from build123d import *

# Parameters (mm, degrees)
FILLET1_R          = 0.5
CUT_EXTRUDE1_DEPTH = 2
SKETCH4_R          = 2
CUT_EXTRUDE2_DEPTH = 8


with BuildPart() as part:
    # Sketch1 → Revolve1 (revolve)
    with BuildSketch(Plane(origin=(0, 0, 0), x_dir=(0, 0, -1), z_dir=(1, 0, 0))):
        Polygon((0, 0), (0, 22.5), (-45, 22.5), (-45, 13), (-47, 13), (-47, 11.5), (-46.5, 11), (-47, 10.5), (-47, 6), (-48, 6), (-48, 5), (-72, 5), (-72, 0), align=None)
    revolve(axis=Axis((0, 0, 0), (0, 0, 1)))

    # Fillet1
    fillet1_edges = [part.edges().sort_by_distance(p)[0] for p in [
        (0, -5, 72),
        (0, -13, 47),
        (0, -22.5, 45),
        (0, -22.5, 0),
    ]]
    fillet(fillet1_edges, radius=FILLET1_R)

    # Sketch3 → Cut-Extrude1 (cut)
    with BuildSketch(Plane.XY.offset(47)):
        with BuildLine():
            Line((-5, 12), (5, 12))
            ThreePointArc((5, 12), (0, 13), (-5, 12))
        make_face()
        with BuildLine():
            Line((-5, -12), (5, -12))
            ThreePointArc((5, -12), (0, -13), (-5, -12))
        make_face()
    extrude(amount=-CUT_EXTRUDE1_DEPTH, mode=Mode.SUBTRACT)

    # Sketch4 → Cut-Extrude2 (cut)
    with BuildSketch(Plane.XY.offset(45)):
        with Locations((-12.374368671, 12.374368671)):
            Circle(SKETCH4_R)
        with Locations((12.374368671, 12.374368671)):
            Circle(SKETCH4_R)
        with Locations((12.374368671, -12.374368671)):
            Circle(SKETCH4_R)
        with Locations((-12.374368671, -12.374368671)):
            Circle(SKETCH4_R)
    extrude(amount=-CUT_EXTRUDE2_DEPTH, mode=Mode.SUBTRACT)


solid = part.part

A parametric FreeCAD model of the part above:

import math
import FreeCAD as App
import Part
import Sketcher
from FreeCAD import Vector
Q = App.Units.Quantity


def edges_at(feature, points):
    """Names of the edges that pass closest to the given points."""
    edges = feature.Shape.Edges
    near = lambda p: min(range(len(edges)), key=lambda i: edges[i].distToShape(Part.Vertex(*p))[0])
    return sorted({f"Edge{near(p) + 1}" for p in points})


def add_polygon(sketch, points):
    """Adds a closed chain of lines whose ends are joined by coincident constraints."""
    first, n = sketch.GeometryCount, len(points)
    for a, b in zip(points, points[1:] + points[:1]):
        sketch.addGeometry(Part.LineSegment(App.Vector(*a, 0), App.Vector(*b, 0)), False)
    for i in range(n):
        sketch.addConstraint(Sketcher.Constraint("Coincident", first + i, 2, first + (i + 1) % n, 1))

doc = App.newDocument("Part")
params = doc.addObject("Spreadsheet::Sheet", "Params")
for row, (alias, value) in enumerate([
    ("sketch1_width", "1 mm"),
    ("sketch1_width2", "5 mm"),
    ("sketch1_height", "45 mm"),
    ("sketch1_height2", "2 mm"),
    ("sketch1_height3", "24 mm"),
    ("revolution_angle", "360 deg"),
    ("fillet_radius", "0.5 mm"),
    ("sketch2_radius", "13 mm"),
    ("sketch2_width", "10 mm"),
    ("pocket1_length", "2 mm"),
    ("sketch3_diameter", "4 mm"),
    ("pocket2_length", "8 mm"),
], start=1):
    params.set(f"A{row}", alias)
    params.set(f"B{row}", "=" + value)
    params.setAlias(f"B{row}", alias)

body = doc.addObject("PartDesign::Body", "Body")

# Sketch on YZ plane
sketch1 = body.newObject("Sketcher::SketchObject", "Sketch")
sketch1.AttachmentSupport = (doc.getObject("YZ_Plane"), [""])
sketch1.MapMode = "FlatFace"
add_polygon(sketch1, [(0, 0), (22.5, 0), (22.5, 45), (13, 45), (13, 47), (11.5, 47), (11, 46.5), (10.5, 47), (6, 47), (6, 48), (5, 48), (5, 72), (0, 72)])  # lines 0-12
sketch1.addConstraint([
    Sketcher.Constraint("Horizontal", 0),
    Sketcher.Constraint("Vertical", 1),
    Sketcher.Constraint("Horizontal", 2),
    Sketcher.Constraint("Vertical", 3),
    Sketcher.Constraint("Horizontal", 4),
    Sketcher.Constraint("Horizontal", 7),
    Sketcher.Constraint("Vertical", 8),
    Sketcher.Constraint("Horizontal", 9),
    Sketcher.Constraint("Vertical", 10),
    Sketcher.Constraint("Horizontal", 11),
    Sketcher.Constraint("Vertical", 12),
    Sketcher.Constraint("Coincident", 12, 2, -1, 1),
    Sketcher.Constraint("Perpendicular", 5, 6),
    Sketcher.Constraint("Horizontal", 4, 2, 6, 2),
    Sketcher.Constraint("Equal", 9, 8),
    Sketcher.Constraint("Equal", 5, 6),
    Sketcher.Constraint("DistanceX", 9, 2, 9, 1, Q("1 mm")),
    Sketcher.Constraint("DistanceX", 11, 2, 11, 1, Q("5 mm")),
    Sketcher.Constraint("DistanceY", 1, 1, 1, 2, Q("45 mm")),
    Sketcher.Constraint("DistanceY", 3, 1, 3, 2, Q("2 mm")),
    Sketcher.Constraint("DistanceY", 10, 1, 10, 2, Q("24 mm")),
    Sketcher.Constraint("DistanceX", 0, 1, 0, 2, Q("22.5 mm")),
    Sketcher.Constraint("DistanceX", 2, 2, 2, 1, Q("9.5 mm")),
    Sketcher.Constraint("DistanceX", 4, 2, 4, 1, Q("1.5 mm")),
    Sketcher.Constraint("DistanceX", 7, 2, 7, 1, Q("4.5 mm")),
])
sketch1.setExpression("Constraints[29]", "Params.sketch1_width")
sketch1.setExpression("Constraints[30]", "Params.sketch1_width2")
sketch1.setExpression("Constraints[31]", "Params.sketch1_height")
sketch1.setExpression("Constraints[32]", "Params.sketch1_height2")
sketch1.setExpression("Constraints[33]", "Params.sketch1_height3")
revolution = body.newObject("PartDesign::Revolution", "Revolution")
revolution.Profile = sketch1
revolution.ReferenceAxis = (sketch1, ["V_Axis"])
revolution.setExpression("Angle", "Params.revolution_angle")
doc.recompute()

fillet = body.newObject("PartDesign::Fillet", "Fillet")
fillet.Base = (revolution, edges_at(revolution, [
    (0, -5, 72),
    (0, -13, 47),
    (0, -22.5, 45),
    (0, -22.5, 0),
]))
fillet.setExpression("Radius", "Params.fillet_radius")

# Sketch on XY plane
sketch2 = body.newObject("Sketcher::SketchObject", "Sketch001")
sketch2.AttachmentSupport = (doc.getObject("XY_Plane"), [""])
sketch2.MapMode = "FlatFace"
sketch2.AttachmentOffset = App.Placement(Vector(0, 0, 47), App.Rotation())
sketch2.addGeometry([
    Part.LineSegment(Vector(-5, 12, 0), Vector(5, 12, 0)),
    Part.ArcOfCircle(Part.Circle(Vector(0, 0, 0), Vector(0, 0, 1), 13), math.radians(67), math.radians(113)),
    Part.LineSegment(Vector(5, -12, 0), Vector(-5, -12, 0)),
    Part.ArcOfCircle(Part.Circle(Vector(0, 0, 0), Vector(0, 0, 1), 13), math.radians(-113), math.radians(-67)),
], False)
sketch2.addConstraint([
    Sketcher.Constraint("Coincident", 0, 1, 1, 2),
    Sketcher.Constraint("Coincident", 1, 1, 0, 2),
    Sketcher.Constraint("Coincident", 2, 1, 3, 2),
    Sketcher.Constraint("Coincident", 3, 1, 2, 2),
    Sketcher.Constraint("Horizontal", 0),
    Sketcher.Constraint("Horizontal", 2),
    Sketcher.Constraint("Coincident", 1, 3, -1, 1),
    Sketcher.Constraint("Coincident", 3, 3, -1, 1),
    Sketcher.Constraint("Equal", 1, 3),
    Sketcher.Constraint("Vertical", 1, 1, 2, 1),
    Sketcher.Constraint("Radius", 1, Q("13 mm")),
    Sketcher.Constraint("DistanceX", 0, 1, 0, 2, Q("10 mm")),
])
sketch2.setExpression("Constraints[10]", "Params.sketch2_radius")
sketch2.setExpression("Constraints[11]", "Params.sketch2_width")
pocket1 = body.newObject("PartDesign::Pocket", "Pocket")
pocket1.Profile = sketch2
pocket1.setExpression("Length", "Params.pocket1_length")

# Sketch on XY plane
sketch3 = body.newObject("Sketcher::SketchObject", "Sketch002")
sketch3.AttachmentSupport = (doc.getObject("XY_Plane"), [""])
sketch3.MapMode = "FlatFace"
sketch3.AttachmentOffset = App.Placement(Vector(0, 0, 45), App.Rotation())
sketch3.addGeometry([
    Part.Circle(Vector(-12.4, 12.4, 0), Vector(0, 0, 1), 2),
    Part.Circle(Vector(12.4, 12.4, 0), Vector(0, 0, 1), 2),
    Part.Circle(Vector(12.4, -12.4, 0), Vector(0, 0, 1), 2),
    Part.Circle(Vector(-12.4, -12.4, 0), Vector(0, 0, 1), 2),
], False)
sketch3.addConstraint([
    Sketcher.Constraint("Equal", 0, 1),
    Sketcher.Constraint("Equal", 1, 2),
    Sketcher.Constraint("Equal", 2, 3),
    Sketcher.Constraint("Symmetric", 0, 3, 2, 3, -1, 1),
    Sketcher.Constraint("Symmetric", 1, 3, 3, 3, -1, 1),
    Sketcher.Constraint("Symmetric", 0, 3, 1, 3, -2),
    Sketcher.Constraint("Diameter", 0, Q("4 mm")),
    Sketcher.Constraint("DistanceX", 0, 3, -1, 1, Q("12.374369 mm")),
    Sketcher.Constraint("DistanceY", -1, 1, 0, 3, Q("12.374369 mm")),
])
sketch3.setExpression("Constraints[6]", "Params.sketch3_diameter")
pocket2 = body.newObject("PartDesign::Pocket", "Pocket001")
pocket2.Profile = sketch3
pocket2.setExpression("Length", "Params.pocket2_length")

doc.recompute()
